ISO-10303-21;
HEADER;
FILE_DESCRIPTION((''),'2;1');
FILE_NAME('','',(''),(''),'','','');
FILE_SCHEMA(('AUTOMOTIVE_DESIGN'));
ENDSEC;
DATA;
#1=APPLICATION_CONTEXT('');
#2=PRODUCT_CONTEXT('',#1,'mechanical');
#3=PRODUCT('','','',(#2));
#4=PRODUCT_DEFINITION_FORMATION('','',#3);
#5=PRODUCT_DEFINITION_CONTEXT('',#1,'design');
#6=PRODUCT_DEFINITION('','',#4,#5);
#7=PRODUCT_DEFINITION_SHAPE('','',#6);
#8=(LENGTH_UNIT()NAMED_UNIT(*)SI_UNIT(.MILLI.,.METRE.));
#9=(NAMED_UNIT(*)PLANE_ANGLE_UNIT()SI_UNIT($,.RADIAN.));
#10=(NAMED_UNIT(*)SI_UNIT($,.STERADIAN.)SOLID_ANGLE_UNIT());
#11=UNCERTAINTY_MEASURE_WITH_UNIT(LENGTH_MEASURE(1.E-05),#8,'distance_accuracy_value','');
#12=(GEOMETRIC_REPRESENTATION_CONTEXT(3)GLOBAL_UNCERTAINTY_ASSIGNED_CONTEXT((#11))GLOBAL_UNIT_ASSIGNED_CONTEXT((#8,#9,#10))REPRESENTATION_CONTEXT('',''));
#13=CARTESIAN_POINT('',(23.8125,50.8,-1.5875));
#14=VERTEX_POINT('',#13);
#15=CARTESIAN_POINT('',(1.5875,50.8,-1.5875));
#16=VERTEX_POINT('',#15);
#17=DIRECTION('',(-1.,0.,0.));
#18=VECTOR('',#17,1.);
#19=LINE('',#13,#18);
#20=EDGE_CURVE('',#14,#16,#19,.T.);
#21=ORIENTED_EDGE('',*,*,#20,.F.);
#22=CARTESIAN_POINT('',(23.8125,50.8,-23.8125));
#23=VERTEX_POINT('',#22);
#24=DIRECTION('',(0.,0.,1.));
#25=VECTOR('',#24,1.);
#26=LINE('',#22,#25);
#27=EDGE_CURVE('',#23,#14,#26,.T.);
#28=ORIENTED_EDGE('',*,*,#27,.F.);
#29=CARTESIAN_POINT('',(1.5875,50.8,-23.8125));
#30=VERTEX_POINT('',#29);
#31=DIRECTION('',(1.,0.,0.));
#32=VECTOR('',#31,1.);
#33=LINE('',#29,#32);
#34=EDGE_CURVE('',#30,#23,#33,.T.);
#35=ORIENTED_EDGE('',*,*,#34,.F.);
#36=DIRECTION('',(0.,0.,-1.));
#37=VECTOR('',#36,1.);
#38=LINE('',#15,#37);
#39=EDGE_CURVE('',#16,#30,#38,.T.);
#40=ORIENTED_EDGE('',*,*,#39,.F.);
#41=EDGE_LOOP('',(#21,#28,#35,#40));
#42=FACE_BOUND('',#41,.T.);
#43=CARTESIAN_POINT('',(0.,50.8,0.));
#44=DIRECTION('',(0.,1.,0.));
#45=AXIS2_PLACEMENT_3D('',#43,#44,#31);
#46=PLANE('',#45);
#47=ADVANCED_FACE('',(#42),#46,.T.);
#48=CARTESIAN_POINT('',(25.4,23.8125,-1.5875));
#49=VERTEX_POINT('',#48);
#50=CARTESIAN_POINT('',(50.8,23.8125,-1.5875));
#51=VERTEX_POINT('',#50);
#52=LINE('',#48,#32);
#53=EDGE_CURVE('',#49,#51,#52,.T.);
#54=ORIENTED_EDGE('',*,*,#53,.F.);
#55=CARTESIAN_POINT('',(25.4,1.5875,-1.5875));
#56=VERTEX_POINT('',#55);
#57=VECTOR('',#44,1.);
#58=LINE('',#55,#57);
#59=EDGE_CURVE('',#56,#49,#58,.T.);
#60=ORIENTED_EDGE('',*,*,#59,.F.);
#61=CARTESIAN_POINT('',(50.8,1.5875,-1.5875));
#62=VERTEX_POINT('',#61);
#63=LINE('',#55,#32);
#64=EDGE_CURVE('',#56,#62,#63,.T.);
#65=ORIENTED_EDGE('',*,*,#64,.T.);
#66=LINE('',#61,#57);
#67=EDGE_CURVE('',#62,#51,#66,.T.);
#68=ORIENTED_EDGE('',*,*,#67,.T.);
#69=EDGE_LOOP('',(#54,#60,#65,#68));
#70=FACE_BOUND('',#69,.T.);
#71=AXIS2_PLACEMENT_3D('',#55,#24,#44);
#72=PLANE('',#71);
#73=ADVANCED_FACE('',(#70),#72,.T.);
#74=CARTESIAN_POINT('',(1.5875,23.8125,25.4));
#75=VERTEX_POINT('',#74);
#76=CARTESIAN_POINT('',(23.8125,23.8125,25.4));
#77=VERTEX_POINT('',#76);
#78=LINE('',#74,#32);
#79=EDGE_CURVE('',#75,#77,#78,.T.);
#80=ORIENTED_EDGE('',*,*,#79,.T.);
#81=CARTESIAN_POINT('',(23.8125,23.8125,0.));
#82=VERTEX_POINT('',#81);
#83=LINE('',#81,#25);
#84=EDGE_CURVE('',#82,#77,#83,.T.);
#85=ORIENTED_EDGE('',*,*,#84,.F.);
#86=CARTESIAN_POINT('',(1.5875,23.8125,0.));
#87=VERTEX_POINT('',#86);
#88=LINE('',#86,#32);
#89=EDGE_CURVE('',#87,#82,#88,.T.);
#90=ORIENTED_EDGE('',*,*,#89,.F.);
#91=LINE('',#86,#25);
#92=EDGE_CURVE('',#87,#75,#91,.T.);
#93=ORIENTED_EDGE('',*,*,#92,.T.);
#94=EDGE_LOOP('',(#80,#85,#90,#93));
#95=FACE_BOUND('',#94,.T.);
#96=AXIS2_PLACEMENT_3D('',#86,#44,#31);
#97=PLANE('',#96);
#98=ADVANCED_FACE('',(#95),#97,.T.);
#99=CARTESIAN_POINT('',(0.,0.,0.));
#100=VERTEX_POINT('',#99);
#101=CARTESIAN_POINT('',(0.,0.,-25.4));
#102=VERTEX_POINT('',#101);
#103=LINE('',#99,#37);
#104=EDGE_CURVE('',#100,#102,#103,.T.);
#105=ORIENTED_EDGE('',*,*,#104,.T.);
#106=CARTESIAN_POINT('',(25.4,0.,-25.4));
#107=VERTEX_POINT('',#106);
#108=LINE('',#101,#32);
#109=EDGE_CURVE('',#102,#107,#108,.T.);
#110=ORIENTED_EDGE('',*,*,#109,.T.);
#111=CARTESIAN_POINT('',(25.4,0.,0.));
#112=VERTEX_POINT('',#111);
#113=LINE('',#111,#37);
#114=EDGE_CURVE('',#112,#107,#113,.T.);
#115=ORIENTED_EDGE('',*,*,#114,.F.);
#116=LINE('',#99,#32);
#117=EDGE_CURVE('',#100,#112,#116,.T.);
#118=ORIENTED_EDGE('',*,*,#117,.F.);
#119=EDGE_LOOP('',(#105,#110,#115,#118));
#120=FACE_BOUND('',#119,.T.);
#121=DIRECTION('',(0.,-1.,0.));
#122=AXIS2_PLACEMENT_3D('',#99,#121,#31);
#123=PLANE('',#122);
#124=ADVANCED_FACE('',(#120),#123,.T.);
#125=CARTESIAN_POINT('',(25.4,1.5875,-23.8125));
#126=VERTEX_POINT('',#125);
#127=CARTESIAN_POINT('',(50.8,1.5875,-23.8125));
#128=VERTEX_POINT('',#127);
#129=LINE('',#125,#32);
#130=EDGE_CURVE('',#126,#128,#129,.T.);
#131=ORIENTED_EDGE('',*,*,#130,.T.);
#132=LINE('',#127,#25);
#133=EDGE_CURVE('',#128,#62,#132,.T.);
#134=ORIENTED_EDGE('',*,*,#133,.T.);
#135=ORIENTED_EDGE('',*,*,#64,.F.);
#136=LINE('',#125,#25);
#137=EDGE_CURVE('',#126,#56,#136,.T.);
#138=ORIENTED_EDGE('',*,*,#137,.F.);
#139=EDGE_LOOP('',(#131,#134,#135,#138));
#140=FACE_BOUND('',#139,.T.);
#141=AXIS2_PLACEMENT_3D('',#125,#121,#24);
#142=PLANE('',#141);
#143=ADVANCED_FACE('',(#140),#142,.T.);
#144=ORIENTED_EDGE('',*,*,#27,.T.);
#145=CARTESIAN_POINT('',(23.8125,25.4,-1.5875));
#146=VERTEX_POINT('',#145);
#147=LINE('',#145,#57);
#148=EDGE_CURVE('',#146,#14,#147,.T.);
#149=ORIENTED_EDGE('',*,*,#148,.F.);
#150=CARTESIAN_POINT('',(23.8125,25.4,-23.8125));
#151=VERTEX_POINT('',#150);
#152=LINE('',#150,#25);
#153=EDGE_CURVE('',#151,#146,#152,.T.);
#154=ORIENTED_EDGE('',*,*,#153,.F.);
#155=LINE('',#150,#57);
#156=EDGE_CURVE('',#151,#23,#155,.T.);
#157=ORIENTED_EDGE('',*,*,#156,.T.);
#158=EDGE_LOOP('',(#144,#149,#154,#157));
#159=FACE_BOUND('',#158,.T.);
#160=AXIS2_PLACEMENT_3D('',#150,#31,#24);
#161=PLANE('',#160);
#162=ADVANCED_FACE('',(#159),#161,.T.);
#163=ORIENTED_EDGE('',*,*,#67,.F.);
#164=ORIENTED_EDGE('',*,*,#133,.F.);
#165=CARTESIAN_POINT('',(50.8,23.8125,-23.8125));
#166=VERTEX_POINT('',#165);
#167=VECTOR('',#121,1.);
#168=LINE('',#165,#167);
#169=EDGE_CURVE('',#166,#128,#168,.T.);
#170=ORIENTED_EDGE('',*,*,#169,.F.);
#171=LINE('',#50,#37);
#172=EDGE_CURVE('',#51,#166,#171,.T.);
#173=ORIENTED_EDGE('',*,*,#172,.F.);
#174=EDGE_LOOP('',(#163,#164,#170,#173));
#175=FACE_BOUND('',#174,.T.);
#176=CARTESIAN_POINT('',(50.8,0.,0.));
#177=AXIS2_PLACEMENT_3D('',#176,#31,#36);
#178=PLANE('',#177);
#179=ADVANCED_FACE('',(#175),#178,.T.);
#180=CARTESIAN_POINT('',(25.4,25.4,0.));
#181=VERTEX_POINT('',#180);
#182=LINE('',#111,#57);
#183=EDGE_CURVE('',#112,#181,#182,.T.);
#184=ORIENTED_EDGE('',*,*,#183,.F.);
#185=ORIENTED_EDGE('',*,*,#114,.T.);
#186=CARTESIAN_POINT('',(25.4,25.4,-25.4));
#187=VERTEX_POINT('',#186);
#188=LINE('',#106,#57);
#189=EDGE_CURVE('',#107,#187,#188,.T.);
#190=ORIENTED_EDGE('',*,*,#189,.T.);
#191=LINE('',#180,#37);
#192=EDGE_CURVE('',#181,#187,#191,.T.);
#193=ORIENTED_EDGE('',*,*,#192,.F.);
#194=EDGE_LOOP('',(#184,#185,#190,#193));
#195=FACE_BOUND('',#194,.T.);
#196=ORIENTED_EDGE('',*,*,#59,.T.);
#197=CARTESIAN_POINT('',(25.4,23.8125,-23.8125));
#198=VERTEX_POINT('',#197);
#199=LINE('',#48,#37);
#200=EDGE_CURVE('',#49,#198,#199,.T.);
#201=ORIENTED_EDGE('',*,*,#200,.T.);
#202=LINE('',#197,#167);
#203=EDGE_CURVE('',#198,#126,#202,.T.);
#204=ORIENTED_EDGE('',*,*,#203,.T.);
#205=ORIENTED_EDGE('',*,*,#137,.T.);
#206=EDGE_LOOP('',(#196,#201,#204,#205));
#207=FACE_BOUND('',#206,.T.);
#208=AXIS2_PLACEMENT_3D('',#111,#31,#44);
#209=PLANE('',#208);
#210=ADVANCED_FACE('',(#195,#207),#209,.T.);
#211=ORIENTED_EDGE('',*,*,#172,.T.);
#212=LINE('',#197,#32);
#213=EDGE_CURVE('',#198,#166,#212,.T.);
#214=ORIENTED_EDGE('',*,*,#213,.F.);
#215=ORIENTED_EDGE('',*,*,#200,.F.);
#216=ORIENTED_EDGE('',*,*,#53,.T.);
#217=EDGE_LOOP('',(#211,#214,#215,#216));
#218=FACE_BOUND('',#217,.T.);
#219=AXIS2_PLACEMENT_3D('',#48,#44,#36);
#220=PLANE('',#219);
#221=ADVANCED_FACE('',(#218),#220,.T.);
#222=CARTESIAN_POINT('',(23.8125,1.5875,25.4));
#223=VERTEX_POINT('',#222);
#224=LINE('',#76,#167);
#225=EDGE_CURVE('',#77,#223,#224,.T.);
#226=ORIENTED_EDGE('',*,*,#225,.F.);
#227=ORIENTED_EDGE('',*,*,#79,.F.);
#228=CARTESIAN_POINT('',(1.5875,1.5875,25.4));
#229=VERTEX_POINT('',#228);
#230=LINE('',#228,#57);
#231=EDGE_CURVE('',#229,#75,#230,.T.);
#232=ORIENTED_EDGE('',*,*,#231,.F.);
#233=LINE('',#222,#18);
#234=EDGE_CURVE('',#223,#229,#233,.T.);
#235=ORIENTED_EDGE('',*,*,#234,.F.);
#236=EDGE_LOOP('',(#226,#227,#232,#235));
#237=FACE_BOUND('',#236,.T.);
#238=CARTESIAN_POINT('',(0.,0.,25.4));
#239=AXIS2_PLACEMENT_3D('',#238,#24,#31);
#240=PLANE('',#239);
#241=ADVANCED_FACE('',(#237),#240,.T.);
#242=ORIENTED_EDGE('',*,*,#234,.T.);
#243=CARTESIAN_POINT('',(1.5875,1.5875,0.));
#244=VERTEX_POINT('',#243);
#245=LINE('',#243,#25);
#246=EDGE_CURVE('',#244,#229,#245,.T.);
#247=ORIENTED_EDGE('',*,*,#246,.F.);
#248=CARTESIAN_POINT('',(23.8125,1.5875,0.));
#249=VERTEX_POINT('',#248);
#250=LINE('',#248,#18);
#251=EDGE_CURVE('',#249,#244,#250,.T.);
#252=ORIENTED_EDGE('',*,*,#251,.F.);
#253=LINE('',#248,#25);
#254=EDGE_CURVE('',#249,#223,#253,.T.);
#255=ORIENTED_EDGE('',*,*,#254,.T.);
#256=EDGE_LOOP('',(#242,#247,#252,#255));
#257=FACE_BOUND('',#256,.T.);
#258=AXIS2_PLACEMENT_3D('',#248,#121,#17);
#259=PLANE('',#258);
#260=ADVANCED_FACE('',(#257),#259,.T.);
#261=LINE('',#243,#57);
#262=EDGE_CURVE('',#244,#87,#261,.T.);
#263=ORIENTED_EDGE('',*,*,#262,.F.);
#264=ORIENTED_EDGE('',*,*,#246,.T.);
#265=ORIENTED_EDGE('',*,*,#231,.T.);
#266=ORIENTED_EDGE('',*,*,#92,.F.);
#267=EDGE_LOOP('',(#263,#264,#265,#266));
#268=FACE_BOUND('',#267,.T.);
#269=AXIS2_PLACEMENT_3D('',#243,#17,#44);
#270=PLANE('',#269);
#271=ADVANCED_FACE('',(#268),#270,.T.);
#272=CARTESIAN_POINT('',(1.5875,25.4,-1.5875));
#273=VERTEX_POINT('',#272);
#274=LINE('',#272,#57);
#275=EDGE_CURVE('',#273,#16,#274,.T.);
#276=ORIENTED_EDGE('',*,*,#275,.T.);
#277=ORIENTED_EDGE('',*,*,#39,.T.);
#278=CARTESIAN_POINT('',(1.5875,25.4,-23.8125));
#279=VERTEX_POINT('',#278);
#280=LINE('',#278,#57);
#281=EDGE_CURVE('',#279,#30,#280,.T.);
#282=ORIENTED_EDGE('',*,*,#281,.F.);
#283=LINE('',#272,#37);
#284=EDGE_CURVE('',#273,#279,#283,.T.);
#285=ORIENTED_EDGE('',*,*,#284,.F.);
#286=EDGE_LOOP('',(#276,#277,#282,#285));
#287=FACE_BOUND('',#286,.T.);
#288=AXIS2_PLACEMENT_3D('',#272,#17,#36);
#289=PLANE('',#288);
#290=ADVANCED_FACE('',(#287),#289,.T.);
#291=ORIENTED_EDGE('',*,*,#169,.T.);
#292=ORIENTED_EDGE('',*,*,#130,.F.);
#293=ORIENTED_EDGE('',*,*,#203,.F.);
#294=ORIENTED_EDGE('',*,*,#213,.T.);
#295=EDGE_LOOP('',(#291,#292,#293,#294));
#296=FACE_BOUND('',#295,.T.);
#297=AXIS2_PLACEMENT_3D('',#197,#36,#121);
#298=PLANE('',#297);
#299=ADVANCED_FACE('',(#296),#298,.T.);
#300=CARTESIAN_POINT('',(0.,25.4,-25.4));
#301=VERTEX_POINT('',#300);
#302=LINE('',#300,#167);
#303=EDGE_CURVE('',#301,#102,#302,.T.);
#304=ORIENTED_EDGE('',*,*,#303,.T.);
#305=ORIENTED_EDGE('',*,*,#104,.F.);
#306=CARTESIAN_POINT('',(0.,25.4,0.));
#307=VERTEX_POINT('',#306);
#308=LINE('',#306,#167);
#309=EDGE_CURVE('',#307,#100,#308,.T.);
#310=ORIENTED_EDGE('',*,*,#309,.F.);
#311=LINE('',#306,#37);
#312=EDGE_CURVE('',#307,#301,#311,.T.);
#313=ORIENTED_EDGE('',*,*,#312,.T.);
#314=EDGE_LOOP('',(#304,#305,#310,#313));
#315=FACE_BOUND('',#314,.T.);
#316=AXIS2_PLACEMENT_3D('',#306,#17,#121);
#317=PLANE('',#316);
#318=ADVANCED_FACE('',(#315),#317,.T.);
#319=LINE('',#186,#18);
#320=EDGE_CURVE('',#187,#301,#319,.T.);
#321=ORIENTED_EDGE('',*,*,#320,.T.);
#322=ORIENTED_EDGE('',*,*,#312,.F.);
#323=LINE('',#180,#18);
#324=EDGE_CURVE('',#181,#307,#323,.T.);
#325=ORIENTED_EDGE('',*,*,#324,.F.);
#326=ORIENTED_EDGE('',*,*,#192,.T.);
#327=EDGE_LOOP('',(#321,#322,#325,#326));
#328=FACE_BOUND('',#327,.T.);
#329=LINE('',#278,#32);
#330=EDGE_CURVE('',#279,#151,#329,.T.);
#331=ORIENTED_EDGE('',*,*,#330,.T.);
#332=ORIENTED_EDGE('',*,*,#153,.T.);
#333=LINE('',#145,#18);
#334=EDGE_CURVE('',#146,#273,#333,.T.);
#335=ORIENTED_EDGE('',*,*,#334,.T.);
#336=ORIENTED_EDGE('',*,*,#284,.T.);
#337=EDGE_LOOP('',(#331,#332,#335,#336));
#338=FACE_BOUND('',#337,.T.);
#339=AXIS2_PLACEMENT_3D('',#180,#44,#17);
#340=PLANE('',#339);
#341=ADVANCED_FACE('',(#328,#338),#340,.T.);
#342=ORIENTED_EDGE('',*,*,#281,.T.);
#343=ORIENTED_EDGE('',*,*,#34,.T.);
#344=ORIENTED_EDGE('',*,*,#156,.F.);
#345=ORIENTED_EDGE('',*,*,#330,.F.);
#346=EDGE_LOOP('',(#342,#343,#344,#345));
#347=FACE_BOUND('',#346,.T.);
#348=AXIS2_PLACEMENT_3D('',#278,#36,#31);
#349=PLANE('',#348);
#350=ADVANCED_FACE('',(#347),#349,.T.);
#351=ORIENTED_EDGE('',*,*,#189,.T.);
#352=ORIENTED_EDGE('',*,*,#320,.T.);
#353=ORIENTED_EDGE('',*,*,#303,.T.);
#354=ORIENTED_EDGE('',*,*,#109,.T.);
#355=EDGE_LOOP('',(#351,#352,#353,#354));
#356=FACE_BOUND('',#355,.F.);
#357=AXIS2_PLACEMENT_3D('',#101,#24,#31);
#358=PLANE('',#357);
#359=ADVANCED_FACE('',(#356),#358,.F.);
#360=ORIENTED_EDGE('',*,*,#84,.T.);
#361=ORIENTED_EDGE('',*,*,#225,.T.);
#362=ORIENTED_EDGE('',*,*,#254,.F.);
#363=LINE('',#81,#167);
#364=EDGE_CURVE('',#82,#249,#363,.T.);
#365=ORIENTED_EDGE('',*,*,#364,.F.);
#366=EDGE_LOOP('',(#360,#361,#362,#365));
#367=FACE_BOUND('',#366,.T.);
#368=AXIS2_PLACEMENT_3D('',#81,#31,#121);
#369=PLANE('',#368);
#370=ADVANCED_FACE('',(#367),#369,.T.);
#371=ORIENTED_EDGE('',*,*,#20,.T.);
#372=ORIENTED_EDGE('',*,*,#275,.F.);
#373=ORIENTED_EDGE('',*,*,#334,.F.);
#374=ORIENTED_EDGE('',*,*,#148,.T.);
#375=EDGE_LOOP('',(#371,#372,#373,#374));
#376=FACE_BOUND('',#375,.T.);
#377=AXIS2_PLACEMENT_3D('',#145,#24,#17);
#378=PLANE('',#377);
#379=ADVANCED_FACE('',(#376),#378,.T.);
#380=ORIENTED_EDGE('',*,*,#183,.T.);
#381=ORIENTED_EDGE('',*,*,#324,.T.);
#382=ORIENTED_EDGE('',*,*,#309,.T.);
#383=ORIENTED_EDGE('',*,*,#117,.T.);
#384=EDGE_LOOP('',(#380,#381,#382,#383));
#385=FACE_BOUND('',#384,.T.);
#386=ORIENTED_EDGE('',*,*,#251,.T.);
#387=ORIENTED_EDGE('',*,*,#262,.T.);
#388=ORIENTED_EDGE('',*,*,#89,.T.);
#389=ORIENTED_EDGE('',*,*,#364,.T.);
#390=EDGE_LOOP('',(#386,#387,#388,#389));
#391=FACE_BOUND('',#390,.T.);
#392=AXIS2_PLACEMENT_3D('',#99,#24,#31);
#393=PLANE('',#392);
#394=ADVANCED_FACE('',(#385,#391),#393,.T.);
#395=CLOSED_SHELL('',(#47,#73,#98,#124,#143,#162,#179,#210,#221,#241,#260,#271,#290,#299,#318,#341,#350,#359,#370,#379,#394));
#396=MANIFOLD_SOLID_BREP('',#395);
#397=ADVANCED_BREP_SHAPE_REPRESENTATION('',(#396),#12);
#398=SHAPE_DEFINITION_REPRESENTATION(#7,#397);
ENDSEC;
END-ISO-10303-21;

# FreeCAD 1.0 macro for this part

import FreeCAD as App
import Part
import Sketcher
Q = App.Units.Quantity

doc = App.newDocument("Part")
body = doc.addObject("PartDesign::Body", "Body")

# Sketch on XY plane
sketch1 = body.newObject("Sketcher::SketchObject", "Sketch")
sketch1.AttachmentSupport = (doc.getObject("XY_Plane"), [""])
sketch1.MapMode = "FlatFace"
sketch1.addGeometry([
    Part.LineSegment(App.Vector(0, 25, 0), App.Vector(0, 0, 0)),
    Part.LineSegment(App.Vector(0, 0, 0), App.Vector(25, 0, 0)),
    Part.LineSegment(App.Vector(25, 0, 0), App.Vector(25, 25, 0)),
    Part.LineSegment(App.Vector(25, 25, 0), App.Vector(0, 25, 0)),
], False)
sketch1.addConstraint([
    Sketcher.Constraint("Coincident", 0, 2, 1, 1),
    Sketcher.Constraint("Coincident", 1, 2, 2, 1),
    Sketcher.Constraint("Coincident", 2, 2, 3, 1),
    Sketcher.Constraint("Coincident", 3, 2, 0, 1),
    Sketcher.Constraint("Vertical", 0),
    Sketcher.Constraint("Horizontal", 1),
    Sketcher.Constraint("Vertical", 2),
    Sketcher.Constraint("Horizontal", 3),
    Sketcher.Constraint("Coincident", 0, 2, -1, 1),
    Sketcher.Constraint("Equal", 3, 0),
    Sketcher.Constraint("DistanceX", 1, 1, 1, 2, Q("1 in")),
])
pad1 = body.newObject("PartDesign::Pad", "Pad")
pad1.Profile = sketch1
pad1.Length = Q("1 in")
pad1.Reversed = True

# Sketch on XY plane
sketch2 = body.newObject("Sketcher::SketchObject", "Sketch001")
sketch2.AttachmentSupport = (doc.getObject("XY_Plane"), [""])
sketch2.MapMode = "FlatFace"
sketch2.addGeometry([
    Part.LineSegment(App.Vector(24, 24, 0), App.Vector(2, 24, 0)),
    Part.LineSegment(App.Vector(2, 24, 0), App.Vector(2, 2, 0)),
    Part.LineSegment(App.Vector(2, 2, 0), App.Vector(24, 2, 0)),
    Part.LineSegment(App.Vector(24, 2, 0), App.Vector(24, 24, 0)),
], False)
sketch2.addConstraint([
    Sketcher.Constraint("Coincident", 0, 2, 1, 1),
    Sketcher.Constraint("Coincident", 1, 2, 2, 1),
    Sketcher.Constraint("Coincident", 2, 2, 3, 1),
    Sketcher.Constraint("Coincident", 3, 2, 0, 1),
    Sketcher.Constraint("Horizontal", 0),
    Sketcher.Constraint("Vertical", 1),
    Sketcher.Constraint("Horizontal", 2),
    Sketcher.Constraint("Vertical", 3),
    Sketcher.Constraint("Equal", 2, 1),
    Sketcher.Constraint("DistanceX", -1, 1, 0, 2, Q("0.0625 in")),
    Sketcher.Constraint("DistanceY", -1, 1, 1, 2, Q("0.0625 in")),
    Sketcher.Constraint("DistanceX", 0, 2, 0, 1, Q("0.875 in")),
])
pad2 = body.newObject("PartDesign::Pad", "Pad001")
pad2.Profile = sketch2
pad2.Length = Q("1 in")

# Sketch on YZ plane
sketch3 = body.newObject("Sketcher::SketchObject", "Sketch002")
sketch3.AttachmentSupport = (doc.getObject("YZ_Plane"), [""])
sketch3.MapMode = "FlatFace"
sketch3.AttachmentOffset = App.Placement(App.Vector(0, 0, 1 * 25.4), App.Rotation())
sketch3.addGeometry([
    Part.LineSegment(App.Vector(2, -24, 0), App.Vector(24, -24, 0)),
    Part.LineSegment(App.Vector(24, -24, 0), App.Vector(24, -2, 0)),
    Part.LineSegment(App.Vector(24, -2, 0), App.Vector(2, -2, 0)),
    Part.LineSegment(App.Vector(2, -2, 0), App.Vector(2, -24, 0)),
], False)
sketch3.addConstraint([
    Sketcher.Constraint("Coincident", 0, 2, 1, 1),
    Sketcher.Constraint("Coincident", 1, 2, 2, 1),
    Sketcher.Constraint("Coincident", 2, 2, 3, 1),
    Sketcher.Constraint("Coincident", 3, 2, 0, 1),
    Sketcher.Constraint("Horizontal", 0),
    Sketcher.Constraint("Vertical", 1),
    Sketcher.Constraint("Horizontal", 2),
    Sketcher.Constraint("Vertical", 3),
    Sketcher.Constraint("Equal", 2, 1),
    Sketcher.Constraint("DistanceY", 1, 2, -1, 1, Q("0.0625 in")),
    Sketcher.Constraint("DistanceX", -1, 1, 2, 2, Q("0.0625 in")),
    Sketcher.Constraint("DistanceX", 0, 1, 0, 2, Q("0.875 in")),
])
pad3 = body.newObject("PartDesign::Pad", "Pad002")
pad3.Profile = sketch3
pad3.Length = Q("1 in")

# Sketch on XZ plane
sketch4 = body.newObject("Sketcher::SketchObject", "Sketch003")
sketch4.AttachmentSupport = (doc.getObject("XZ_Plane"), [""])
sketch4.MapMode = "FlatFace"
sketch4.AttachmentOffset = App.Placement(App.Vector(0, 0, -1 * 25.4), App.Rotation())
sketch4.addGeometry([
    Part.LineSegment(App.Vector(24, -24, 0), App.Vector(2, -24, 0)),
    Part.LineSegment(App.Vector(2, -24, 0), App.Vector(2, -2, 0)),
    Part.LineSegment(App.Vector(2, -2, 0), App.Vector(24, -2, 0)),
    Part.LineSegment(App.Vector(24, -2, 0), App.Vector(24, -24, 0)),
], False)
sketch4.addConstraint([
    Sketcher.Constraint("Coincident", 0, 2, 1, 1),
    Sketcher.Constraint("Coincident", 1, 2, 2, 1),
    Sketcher.Constraint("Coincident", 2, 2, 3, 1),
    Sketcher.Constraint("Coincident", 3, 2, 0, 1),
    Sketcher.Constraint("Horizontal", 0),
    Sketcher.Constraint("Vertical", 1),
    Sketcher.Constraint("Horizontal", 2),
    Sketcher.Constraint("Vertical", 3),
    Sketcher.Constraint("Equal", 2, 1),
    Sketcher.Constraint("DistanceX", -1, 1, 0, 2, Q("0.0625 in")),
    Sketcher.Constraint("DistanceY", 1, 2, -1, 1, Q("0.0625 in")),
    Sketcher.Constraint("DistanceX", 0, 2, 0, 1, Q("0.875 in")),
])
pad4 = body.newObject("PartDesign::Pad", "Pad003")
pad4.Profile = sketch4
pad4.Length = Q("1 in")
pad4.Reversed = True

doc.recompute()
